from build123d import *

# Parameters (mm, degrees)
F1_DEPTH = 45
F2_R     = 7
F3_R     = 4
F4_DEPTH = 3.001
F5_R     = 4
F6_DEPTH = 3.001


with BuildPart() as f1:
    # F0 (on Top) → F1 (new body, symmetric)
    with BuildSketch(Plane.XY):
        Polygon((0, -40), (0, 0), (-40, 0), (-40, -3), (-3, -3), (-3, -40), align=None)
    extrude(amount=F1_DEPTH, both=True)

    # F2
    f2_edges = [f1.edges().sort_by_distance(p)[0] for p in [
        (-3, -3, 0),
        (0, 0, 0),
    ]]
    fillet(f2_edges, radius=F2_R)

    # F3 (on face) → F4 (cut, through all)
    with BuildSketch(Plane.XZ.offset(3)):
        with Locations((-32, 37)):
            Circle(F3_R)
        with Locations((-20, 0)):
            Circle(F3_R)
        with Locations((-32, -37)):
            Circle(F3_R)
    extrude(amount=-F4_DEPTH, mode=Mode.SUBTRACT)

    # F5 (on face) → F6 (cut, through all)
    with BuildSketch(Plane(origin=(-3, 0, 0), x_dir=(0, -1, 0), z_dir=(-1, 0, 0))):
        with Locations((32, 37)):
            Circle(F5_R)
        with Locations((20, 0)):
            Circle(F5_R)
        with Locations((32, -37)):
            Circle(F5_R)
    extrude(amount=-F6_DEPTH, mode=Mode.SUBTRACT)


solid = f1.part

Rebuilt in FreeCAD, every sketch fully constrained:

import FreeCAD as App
import Part
import Sketcher
Q = App.Units.Quantity


def edges_at(feature, points):
    """Names of the edges that pass closest to the given points."""
    edges = feature.Shape.Edges
    near = lambda p: min(range(len(edges)), key=lambda i: edges[i].distToShape(Part.Vertex(*p))[0])
    return sorted({f"Edge{near(p) + 1}" for p in points})


def add_polygon(sketch, points):
    """Adds a closed chain of lines whose ends are joined by coincident constraints."""
    first, n = sketch.GeometryCount, len(points)
    for a, b in zip(points, points[1:] + points[:1]):
        sketch.addGeometry(Part.LineSegment(App.Vector(*a, 0), App.Vector(*b, 0)), False)
    for i in range(n):
        sketch.addConstraint(Sketcher.Constraint("Coincident", first + i, 2, first + (i + 1) % n, 1))

doc = App.newDocument("Part")
body = doc.addObject("PartDesign::Body", "Body")

sketch1 = body.newObject("Sketcher::SketchObject", "Sketch")
sketch1.AttachmentSupport = (doc.getObject("XY_Plane"), [""])
sketch1.MapMode = "FlatFace"
add_polygon(sketch1, [(0, -40), (0, 0), (-40, 0), (-40, -3), (-3, -3), (-3, -40)])
sketch1.addConstraint([
    Sketcher.Constraint("Vertical", 0),
    Sketcher.Constraint("Horizontal", 1),
    Sketcher.Constraint("Vertical", 2),
    Sketcher.Constraint("Horizontal", 3),
    Sketcher.Constraint("Vertical", 4),
    Sketcher.Constraint("Horizontal", 5),
    Sketcher.Constraint("Coincident", 0, 2, -1, 1),
    Sketcher.Constraint("Equal", 1, 0),
    Sketcher.Constraint("Equal", 5, 2),
    Sketcher.Constraint("DistanceX", 1, 2, 1, 1, Q("40 mm")),
    Sketcher.Constraint("DistanceX", 3, 1, 3, 2, Q("37 mm")),
])
pad1 = body.newObject("PartDesign::Pad", "Pad")
pad1.Profile = sketch1
pad1.Length = 90
pad1.Midplane = True
doc.recompute()

fillet = body.newObject("PartDesign::Fillet", "Fillet")
fillet.Base = (pad1, edges_at(pad1, [(-3, -3, 0), (0, 0, 0)]))
fillet.Radius = 7

sketch2 = body.newObject("Sketcher::SketchObject", "Sketch001")
sketch2.AttachmentSupport = (doc.getObject("XZ_Plane"), [""])
sketch2.MapMode = "FlatFace"
sketch2.AttachmentOffset = App.Placement(App.Vector(0, 0, 3), App.Rotation())
sketch2.addGeometry([
    Part.Circle(App.Vector(-32, 37, 0), App.Vector(0, 0, 1), 4),
    Part.Circle(App.Vector(-20, 0, 0), App.Vector(0, 0, 1), 4),
    Part.Circle(App.Vector(-32, -37, 0), App.Vector(0, 0, 1), 4),
], False)
sketch2.addConstraint([
    Sketcher.Constraint("Equal", 0, 1),
    Sketcher.Constraint("Equal", 1, 2),
    Sketcher.Constraint("Symmetric", 0, 3, 2, 3, -1),
    Sketcher.Constraint("PointOnObject", 1, 3, -1),
    Sketcher.Constraint("Diameter", 0, Q("8 mm")),
    Sketcher.Constraint("DistanceX", 0, 3, -1, 1, Q("32 mm")),
    Sketcher.Constraint("DistanceY", -1, 1, 0, 3, Q("37 mm")),
    Sketcher.Constraint("DistanceX", 1, 3, -1, 1, Q("20 mm")),
])
pocket1 = body.newObject("PartDesign::Pocket", "Pocket")
pocket1.Profile = sketch2
pocket1.Type = "ThroughAll"

sketch3 = body.newObject("Sketcher::SketchObject", "Sketch002")
sketch3.AttachmentSupport = (doc.getObject("YZ_Plane"), [""])
sketch3.MapMode = "FlatFace"
sketch3.AttachmentOffset = App.Placement(App.Vector(0, 0, -3), App.Rotation())
sketch3.addGeometry([
    Part.Circle(App.Vector(-32, 37, 0), App.Vector(0, 0, 1), 4),
    Part.Circle(App.Vector(-20, 0, 0), App.Vector(0, 0, 1), 4),
    Part.Circle(App.Vector(-32, -37, 0), App.Vector(0, 0, 1), 4),
], False)
sketch3.addConstraint([
    Sketcher.Constraint("Equal", 0, 1),
    Sketcher.Constraint("Equal", 1, 2),
    Sketcher.Constraint("Symmetric", 0, 3, 2, 3, -1),
    Sketcher.Constraint("PointOnObject", 1, 3, -1),
    Sketcher.Constraint("Diameter", 0, Q("8 mm")),
    Sketcher.Constraint("DistanceX", 0, 3, -1, 1, Q("32 mm")),
    Sketcher.Constraint("DistanceY", -1, 1, 0, 3, Q("37 mm")),
    Sketcher.Constraint("DistanceX", 1, 3, -1, 1, Q("20 mm")),
])
pocket2 = body.newObject("PartDesign::Pocket", "Pocket001")
pocket2.Profile = sketch3
pocket2.Type = "ThroughAll"
pocket2.Reversed = True

doc.recompute()
